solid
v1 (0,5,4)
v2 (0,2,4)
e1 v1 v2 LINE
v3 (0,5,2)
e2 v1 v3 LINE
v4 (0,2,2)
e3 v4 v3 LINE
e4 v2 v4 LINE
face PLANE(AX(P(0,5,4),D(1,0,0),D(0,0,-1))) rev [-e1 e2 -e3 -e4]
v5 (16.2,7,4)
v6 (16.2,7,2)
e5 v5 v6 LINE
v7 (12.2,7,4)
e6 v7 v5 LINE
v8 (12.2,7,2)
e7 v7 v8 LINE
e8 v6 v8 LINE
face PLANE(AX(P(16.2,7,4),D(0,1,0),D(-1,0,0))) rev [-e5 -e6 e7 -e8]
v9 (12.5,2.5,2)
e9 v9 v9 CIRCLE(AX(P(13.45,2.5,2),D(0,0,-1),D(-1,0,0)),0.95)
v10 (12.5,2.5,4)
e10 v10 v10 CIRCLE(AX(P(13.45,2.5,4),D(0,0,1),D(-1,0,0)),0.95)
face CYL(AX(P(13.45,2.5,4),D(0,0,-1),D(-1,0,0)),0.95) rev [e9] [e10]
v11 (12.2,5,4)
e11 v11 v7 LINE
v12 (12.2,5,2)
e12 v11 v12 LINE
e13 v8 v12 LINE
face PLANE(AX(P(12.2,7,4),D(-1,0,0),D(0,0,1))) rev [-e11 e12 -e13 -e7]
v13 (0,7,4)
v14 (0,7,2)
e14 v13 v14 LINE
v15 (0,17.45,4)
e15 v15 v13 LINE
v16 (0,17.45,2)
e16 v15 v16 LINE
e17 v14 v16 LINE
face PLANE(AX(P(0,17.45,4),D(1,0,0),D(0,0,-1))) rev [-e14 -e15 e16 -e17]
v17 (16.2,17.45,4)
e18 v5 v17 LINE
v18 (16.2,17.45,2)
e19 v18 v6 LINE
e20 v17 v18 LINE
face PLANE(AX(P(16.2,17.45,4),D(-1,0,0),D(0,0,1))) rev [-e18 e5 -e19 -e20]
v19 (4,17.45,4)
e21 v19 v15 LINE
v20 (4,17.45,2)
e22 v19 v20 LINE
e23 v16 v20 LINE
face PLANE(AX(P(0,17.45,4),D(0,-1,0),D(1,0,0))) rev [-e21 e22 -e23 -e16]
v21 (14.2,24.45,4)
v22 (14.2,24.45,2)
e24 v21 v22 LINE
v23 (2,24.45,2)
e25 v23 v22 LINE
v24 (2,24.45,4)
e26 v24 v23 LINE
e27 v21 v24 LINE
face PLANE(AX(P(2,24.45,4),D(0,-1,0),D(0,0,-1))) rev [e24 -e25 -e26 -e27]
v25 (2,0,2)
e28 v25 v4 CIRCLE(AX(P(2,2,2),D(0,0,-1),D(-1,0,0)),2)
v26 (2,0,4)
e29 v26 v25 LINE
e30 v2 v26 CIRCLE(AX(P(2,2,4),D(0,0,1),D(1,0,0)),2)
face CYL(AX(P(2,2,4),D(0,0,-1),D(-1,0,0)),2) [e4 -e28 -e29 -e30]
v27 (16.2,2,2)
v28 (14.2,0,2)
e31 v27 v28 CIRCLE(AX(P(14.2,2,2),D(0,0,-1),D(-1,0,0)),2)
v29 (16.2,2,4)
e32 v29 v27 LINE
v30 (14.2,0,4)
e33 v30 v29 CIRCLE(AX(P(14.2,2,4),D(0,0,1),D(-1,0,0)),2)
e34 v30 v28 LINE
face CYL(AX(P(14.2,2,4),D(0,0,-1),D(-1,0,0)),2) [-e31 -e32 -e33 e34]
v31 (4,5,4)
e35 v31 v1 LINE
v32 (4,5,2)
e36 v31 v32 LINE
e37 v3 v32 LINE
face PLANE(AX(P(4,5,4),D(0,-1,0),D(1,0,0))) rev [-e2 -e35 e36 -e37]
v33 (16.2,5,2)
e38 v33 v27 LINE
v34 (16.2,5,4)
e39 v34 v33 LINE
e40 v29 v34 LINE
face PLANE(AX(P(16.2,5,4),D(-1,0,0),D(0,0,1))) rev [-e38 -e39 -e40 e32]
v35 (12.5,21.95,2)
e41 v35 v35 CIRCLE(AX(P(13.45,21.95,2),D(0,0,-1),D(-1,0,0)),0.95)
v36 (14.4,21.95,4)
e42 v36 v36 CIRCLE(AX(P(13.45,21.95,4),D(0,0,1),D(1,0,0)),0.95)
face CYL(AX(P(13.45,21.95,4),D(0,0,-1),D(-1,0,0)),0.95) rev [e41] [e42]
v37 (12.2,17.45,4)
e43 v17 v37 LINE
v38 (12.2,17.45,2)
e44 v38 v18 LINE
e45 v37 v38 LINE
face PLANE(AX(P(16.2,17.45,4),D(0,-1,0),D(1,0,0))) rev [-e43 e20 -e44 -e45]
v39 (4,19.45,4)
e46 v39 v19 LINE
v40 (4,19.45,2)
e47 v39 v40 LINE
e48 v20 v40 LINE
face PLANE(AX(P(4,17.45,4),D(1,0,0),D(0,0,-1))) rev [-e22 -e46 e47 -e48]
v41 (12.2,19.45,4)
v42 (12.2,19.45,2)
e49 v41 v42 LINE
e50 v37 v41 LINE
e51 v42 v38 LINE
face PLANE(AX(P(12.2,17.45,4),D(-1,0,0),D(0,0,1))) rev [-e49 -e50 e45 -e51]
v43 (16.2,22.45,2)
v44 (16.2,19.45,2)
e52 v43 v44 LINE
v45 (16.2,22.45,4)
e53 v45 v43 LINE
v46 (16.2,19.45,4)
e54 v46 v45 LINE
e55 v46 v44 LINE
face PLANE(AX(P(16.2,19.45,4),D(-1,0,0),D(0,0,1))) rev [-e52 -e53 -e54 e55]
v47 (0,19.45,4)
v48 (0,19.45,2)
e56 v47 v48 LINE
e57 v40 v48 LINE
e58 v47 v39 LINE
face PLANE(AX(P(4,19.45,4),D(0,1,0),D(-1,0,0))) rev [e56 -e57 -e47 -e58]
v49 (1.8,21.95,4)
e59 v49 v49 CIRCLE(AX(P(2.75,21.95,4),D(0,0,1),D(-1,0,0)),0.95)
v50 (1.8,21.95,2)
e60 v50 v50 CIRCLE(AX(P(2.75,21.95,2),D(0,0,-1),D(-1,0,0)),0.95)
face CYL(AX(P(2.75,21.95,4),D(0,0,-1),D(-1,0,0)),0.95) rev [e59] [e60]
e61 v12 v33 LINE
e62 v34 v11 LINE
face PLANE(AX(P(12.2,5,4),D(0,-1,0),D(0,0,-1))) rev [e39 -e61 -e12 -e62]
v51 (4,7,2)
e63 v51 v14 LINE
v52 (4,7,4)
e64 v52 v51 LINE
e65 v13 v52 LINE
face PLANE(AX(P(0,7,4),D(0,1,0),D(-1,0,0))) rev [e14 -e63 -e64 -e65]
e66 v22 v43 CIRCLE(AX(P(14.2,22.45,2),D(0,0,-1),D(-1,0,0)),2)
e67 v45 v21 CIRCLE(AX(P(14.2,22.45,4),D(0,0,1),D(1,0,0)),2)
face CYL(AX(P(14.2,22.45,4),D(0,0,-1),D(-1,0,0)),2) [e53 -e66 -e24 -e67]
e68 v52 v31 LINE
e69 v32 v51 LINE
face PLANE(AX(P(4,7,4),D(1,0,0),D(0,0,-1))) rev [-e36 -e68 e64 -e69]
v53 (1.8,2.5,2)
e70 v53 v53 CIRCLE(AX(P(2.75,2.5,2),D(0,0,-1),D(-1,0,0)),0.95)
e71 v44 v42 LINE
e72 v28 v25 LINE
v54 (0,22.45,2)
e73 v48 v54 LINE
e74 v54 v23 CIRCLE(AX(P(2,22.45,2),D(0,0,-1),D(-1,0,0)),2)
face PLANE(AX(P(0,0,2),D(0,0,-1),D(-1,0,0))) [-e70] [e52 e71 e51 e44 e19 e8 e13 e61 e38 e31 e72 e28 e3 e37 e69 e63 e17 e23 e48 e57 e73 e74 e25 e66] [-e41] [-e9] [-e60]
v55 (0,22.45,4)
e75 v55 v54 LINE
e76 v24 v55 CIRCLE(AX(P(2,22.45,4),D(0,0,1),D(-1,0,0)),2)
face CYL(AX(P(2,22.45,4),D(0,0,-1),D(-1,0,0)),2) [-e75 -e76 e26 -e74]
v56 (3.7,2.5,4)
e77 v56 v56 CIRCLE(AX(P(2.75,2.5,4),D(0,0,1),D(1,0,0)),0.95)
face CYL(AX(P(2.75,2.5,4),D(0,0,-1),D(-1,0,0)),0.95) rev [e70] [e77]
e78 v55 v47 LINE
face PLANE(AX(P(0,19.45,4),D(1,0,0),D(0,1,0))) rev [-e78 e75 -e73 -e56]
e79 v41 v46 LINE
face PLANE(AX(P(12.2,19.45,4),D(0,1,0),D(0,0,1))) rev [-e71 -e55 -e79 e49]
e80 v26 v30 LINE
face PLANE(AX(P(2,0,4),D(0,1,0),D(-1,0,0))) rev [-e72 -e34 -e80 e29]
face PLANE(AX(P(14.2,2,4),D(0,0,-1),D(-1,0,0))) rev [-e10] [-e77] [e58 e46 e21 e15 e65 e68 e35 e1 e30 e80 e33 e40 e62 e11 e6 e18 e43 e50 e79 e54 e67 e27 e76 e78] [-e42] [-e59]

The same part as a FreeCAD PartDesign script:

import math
import FreeCAD as App
import Part
import Sketcher
Q = App.Units.Quantity

doc = App.newDocument("Part")
body = doc.addObject("PartDesign::Body", "Body")

sketch1 = body.newObject("Sketcher::SketchObject", "Sketch")
sketch1.AttachmentSupport = (doc.getObject("XY_Plane"), [""])
sketch1.MapMode = "FlatFace"
sketch1.addGeometry([
    Part.LineSegment(App.Vector(0, 17.45, 0), App.Vector(0, 7, 0)),
    Part.LineSegment(App.Vector(0, 7, 0), App.Vector(4, 7, 0)),
    Part.LineSegment(App.Vector(4, 7, 0), App.Vector(4, 5, 0)),
    Part.LineSegment(App.Vector(4, 5, 0), App.Vector(0, 5, 0)),
    Part.LineSegment(App.Vector(0, 5, 0), App.Vector(0, 2, 0)),
    Part.ArcOfCircle(Part.Circle(App.Vector(2, 2, 0), App.Vector(0, 0, 1), 2), math.radians(-180), math.radians(-90)),
    Part.LineSegment(App.Vector(2, 0, 0), App.Vector(14.2, 0, 0)),
    Part.ArcOfCircle(Part.Circle(App.Vector(14.2, 2, 0), App.Vector(0, 0, 1), 2), math.radians(-90), math.radians(0)),
    Part.LineSegment(App.Vector(16.2, 2, 0), App.Vector(16.2, 5, 0)),
    Part.LineSegment(App.Vector(16.2, 5, 0), App.Vector(12.2, 5, 0)),
    Part.LineSegment(App.Vector(12.2, 5, 0), App.Vector(12.2, 7, 0)),
    Part.LineSegment(App.Vector(12.2, 7, 0), App.Vector(16.2, 7, 0)),
    Part.LineSegment(App.Vector(16.2, 7, 0), App.Vector(16.2, 17.45, 0)),
    Part.LineSegment(App.Vector(16.2, 17.45, 0), App.Vector(12.2, 17.45, 0)),
    Part.LineSegment(App.Vector(12.2, 17.45, 0), App.Vector(12.2, 19.45, 0)),
    Part.LineSegment(App.Vector(12.2, 19.45, 0), App.Vector(16.2, 19.45, 0)),
    Part.LineSegment(App.Vector(16.2, 19.45, 0), App.Vector(16.2, 22.45, 0)),
    Part.ArcOfCircle(Part.Circle(App.Vector(14.2, 22.45, 0), App.Vector(0, 0, 1), 2), math.radians(0), math.radians(90)),
    Part.LineSegment(App.Vector(14.2, 24.45, 0), App.Vector(2, 24.45, 0)),
    Part.ArcOfCircle(Part.Circle(App.Vector(2, 22.45, 0), App.Vector(0, 0, 1), 2), math.radians(90), math.radians(180)),
    Part.LineSegment(App.Vector(0, 22.45, 0), App.Vector(0, 19.45, 0)),
    Part.LineSegment(App.Vector(0, 19.45, 0), App.Vector(4, 19.45, 0)),
    Part.LineSegment(App.Vector(4, 19.45, 0), App.Vector(4, 17.45, 0)),
    Part.LineSegment(App.Vector(4, 17.45, 0), App.Vector(0, 17.45, 0)),
    Part.Circle(App.Vector(2.75, 2.5, 0), App.Vector(0, 0, 1), 0.95),
    Part.Circle(App.Vector(13.45, 2.5, 0), App.Vector(0, 0, 1), 0.95),
    Part.Circle(App.Vector(2.75, 21.95, 0), App.Vector(0, 0, 1), 0.95),
    Part.Circle(App.Vector(13.45, 21.95, 0), App.Vector(0, 0, 1), 0.95),
], False)
sketch1.addConstraint([
    Sketcher.Constraint("Coincident", 0, 2, 1, 1),
    Sketcher.Constraint("Coincident", 1, 2, 2, 1),
    Sketcher.Constraint("Coincident", 2, 2, 3, 1),
    Sketcher.Constraint("Coincident", 3, 2, 4, 1),
    Sketcher.Constraint("Tangent", 4, 2, 5, 1),
    Sketcher.Constraint("Tangent", 5, 2, 6, 1),
    Sketcher.Constraint("Tangent", 6, 2, 7, 1),
    Sketcher.Constraint("Tangent", 7, 2, 8, 1),
    Sketcher.Constraint("Coincident", 8, 2, 9, 1),
    Sketcher.Constraint("Coincident", 9, 2, 10, 1),
    Sketcher.Constraint("Coincident", 10, 2, 11, 1),
    Sketcher.Constraint("Coincident", 11, 2, 12, 1),
    Sketcher.Constraint("Coincident", 12, 2, 13, 1),
    Sketcher.Constraint("Coincident", 13, 2, 14, 1),
    Sketcher.Constraint("Coincident", 14, 2, 15, 1),
    Sketcher.Constraint("Coincident", 15, 2, 16, 1),
    Sketcher.Constraint("Tangent", 16, 2, 17, 1),
    Sketcher.Constraint("Tangent", 17, 2, 18, 1),
    Sketcher.Constraint("Tangent", 18, 2, 19, 1),
    Sketcher.Constraint("Tangent", 19, 2, 20, 1),
    Sketcher.Constraint("Coincident", 20, 2, 21, 1),
    Sketcher.Constraint("Coincident", 21, 2, 22, 1),
    Sketcher.Constraint("Coincident", 22, 2, 23, 1),
    Sketcher.Constraint("Coincident", 23, 2, 0, 1),
    Sketcher.Constraint("Vertical", 0),
    Sketcher.Constraint("Horizontal", 1),
    Sketcher.Constraint("Vertical", 2),
    Sketcher.Constraint("Horizontal", 3),
    Sketcher.Constraint("Vertical", 4),
    Sketcher.Constraint("Horizontal", 6),
    Sketcher.Constraint("Vertical", 8),
    Sketcher.Constraint("Horizontal", 9),
    Sketcher.Constraint("Vertical", 10),
    Sketcher.Constraint("Horizontal", 11),
    Sketcher.Constraint("Vertical", 12),
    Sketcher.Constraint("Horizontal", 13),
    Sketcher.Constraint("Vertical", 14),
    Sketcher.Constraint("Horizontal", 15),
    Sketcher.Constraint("Vertical", 16),
    Sketcher.Constraint("Horizontal", 18),
    Sketcher.Constraint("Vertical", 20),
    Sketcher.Constraint("Horizontal", 21),
    Sketcher.Constraint("Vertical", 22),
    Sketcher.Constraint("Horizontal", 23),
    Sketcher.Constraint("Equal", 5, 7),
    Sketcher.Constraint("Equal", 7, 17),
    Sketcher.Constraint("Equal", 17, 19),
    Sketcher.Constraint("Equal", 24, 25),
    Sketcher.Constraint("Equal", 25, 26),
    Sketcher.Constraint("Equal", 26, 27),
    Sketcher.Constraint("PointOnObject", 0, 2, -2),
    Sketcher.Constraint("PointOnObject", 3, 2, -2),
    Sketcher.Constraint("PointOnObject", 5, 2, -1),
    Sketcher.Constraint("PointOnObject", 19, 2, -2),
    Sketcher.Constraint("Horizontal", 24, 3, 25, 3),
    Sketcher.Constraint("Horizontal", 26, 3, 27, 3),
    Sketcher.Constraint("Horizontal", 3, 2, 8, 2),
    Sketcher.Constraint("Horizontal", 1, 2, 10, 2),
    Sketcher.Constraint("Horizontal", 15, 2, 20, 2),
    Sketcher.Constraint("Horizontal", 13, 2, 22, 2),
    Sketcher.Constraint("Vertical", 7, 3, 17, 3),
    Sketcher.Constraint("Vertical", 24, 3, 26, 3),
    Sketcher.Constraint("Vertical", 25, 3, 27, 3),
    Sketcher.Constraint("Vertical", 8, 2, 11, 2),
    Sketcher.Constraint("Vertical", 10, 2, 13, 2),
    Sketcher.Constraint("Vertical", 2, 2, 21, 2),
    Sketcher.Constraint("Equal", 3, 9),
    Sketcher.Constraint("Equal", 10, 14),
    Sketcher.Constraint("Equal", 8, 16),
    Sketcher.Constraint("Radius", 5, Q("2 mm")),
    Sketcher.Constraint("Diameter", 24, Q("1.9 mm")),
    Sketcher.Constraint("DistanceX", 1, 1, 1, 2, Q("4 mm")),
    Sketcher.Constraint("DistanceY", 2, 2, 2, 1, Q("2 mm")),
    Sketcher.Constraint("DistanceY", 4, 2, 4, 1, Q("3 mm")),
    Sketcher.Constraint("DistanceX", 6, 1, 6, 2, Q("12.2 mm")),
    Sketcher.Constraint("DistanceY", 0, 2, 0, 1, Q("10.45 mm")),
    Sketcher.Constraint("DistanceY", -1, 1, 24, 3, Q("2.5 mm")),
    Sketcher.Constraint("DistanceX", 24, 3, 25, 3, Q("10.7 mm")),
    Sketcher.Constraint("DistanceY", 26, 3, 19, 3, Q("0.5 mm")),
    Sketcher.Constraint("DistanceX", -1, 1, 24, 3, Q("2.75 mm")),
])
pad1 = body.newObject("PartDesign::Pad", "Pad")
pad1.Profile = sketch1
pad1.Length = 4

sketch2 = body.newObject("Sketcher::SketchObject", "Sketch001")
sketch2.AttachmentSupport = (doc.getObject("XY_Plane"), [""])
sketch2.MapMode = "FlatFace"
sketch2.addGeometry([
    Part.LineSegment(App.Vector(16.2, 24.45, 0), App.Vector(16.2, 0, 0)),
    Part.LineSegment(App.Vector(16.2, 0, 0), App.Vector(0, 0, 0)),
    Part.LineSegment(App.Vector(0, 0, 0), App.Vector(0, 24.45, 0)),
    Part.LineSegment(App.Vector(0, 24.45, 0), App.Vector(16.2, 24.45, 0)),
], False)
sketch2.addConstraint([
    Sketcher.Constraint("Coincident", 0, 2, 1, 1),
    Sketcher.Constraint("Coincident", 1, 2, 2, 1),
    Sketcher.Constraint("Coincident", 2, 2, 3, 1),
    Sketcher.Constraint("Coincident", 3, 2, 0, 1),
    Sketcher.Constraint("Vertical", 0),
    Sketcher.Constraint("Horizontal", 1),
    Sketcher.Constraint("Vertical", 2),
    Sketcher.Constraint("Horizontal", 3),
    Sketcher.Constraint("Coincident", 1, 2, -1, 1),
    Sketcher.Constraint("DistanceX", 1, 2, 1, 1, Q("16.2 mm")),
    Sketcher.Constraint("DistanceY", 0, 2, 0, 1, Q("24.45 mm")),
])
pocket1 = body.newObject("PartDesign::Pocket", "Pocket")
pocket1.Profile = sketch2
pocket1.Length = 2
pocket1.Reversed = True

doc.recompute()
